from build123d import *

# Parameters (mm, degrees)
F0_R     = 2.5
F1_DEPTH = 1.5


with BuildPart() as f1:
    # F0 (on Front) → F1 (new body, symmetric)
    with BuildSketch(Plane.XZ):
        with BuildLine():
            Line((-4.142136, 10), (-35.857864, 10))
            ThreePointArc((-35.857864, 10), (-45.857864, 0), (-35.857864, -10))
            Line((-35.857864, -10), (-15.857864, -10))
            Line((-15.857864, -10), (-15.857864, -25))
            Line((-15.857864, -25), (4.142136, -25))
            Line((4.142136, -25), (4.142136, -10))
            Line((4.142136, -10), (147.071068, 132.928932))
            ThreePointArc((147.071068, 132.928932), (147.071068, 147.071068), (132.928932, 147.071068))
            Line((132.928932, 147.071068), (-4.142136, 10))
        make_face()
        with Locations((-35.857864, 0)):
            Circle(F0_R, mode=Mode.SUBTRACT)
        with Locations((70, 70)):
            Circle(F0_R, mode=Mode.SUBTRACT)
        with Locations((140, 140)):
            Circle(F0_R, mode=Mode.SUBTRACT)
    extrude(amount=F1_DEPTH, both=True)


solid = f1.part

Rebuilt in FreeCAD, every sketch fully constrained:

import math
import FreeCAD as App
import Part
import Sketcher
from FreeCAD import Vector
Q = App.Units.Quantity

doc = App.newDocument("Part")
body = doc.addObject("PartDesign::Body", "Body")

# Sketch on XZ plane
sketch1 = doc.addObject("Sketcher::SketchObject", "Sketch")
body.addObject(sketch1)
sketch1.AttachmentSupport = (doc.XZ_Plane, [""])
sketch1.MapMode = "FlatFace"
sketch1.addGeometry(Part.LineSegment(Vector(-4.1, 10, 0), Vector(-35.9, 10, 0)), False)
sketch1.addGeometry(Part.ArcOfCircle(Part.Circle(Vector(-35.9, 0, 0), Vector(0, 0, 1), 10), math.radians(90), math.radians(270)), False)
sketch1.addGeometry(Part.LineSegment(Vector(-35.9, -10, 0), Vector(-15.9, -10, 0)), False)
sketch1.addGeometry(Part.LineSegment(Vector(-15.9, -10, 0), Vector(-15.9, -25, 0)), False)
sketch1.addGeometry(Part.LineSegment(Vector(-15.9, -25, 0), Vector(4.1, -25, 0)), False)
sketch1.addGeometry(Part.LineSegment(Vector(4.1, -25, 0), Vector(4.1, -10, 0)), False)
sketch1.addGeometry(Part.LineSegment(Vector(4.1, -10, 0), Vector(147.1, 132.9, 0)), False)
sketch1.addGeometry(Part.ArcOfCircle(Part.Circle(Vector(140, 140, 0), Vector(0, 0, 1), 10), math.radians(-45), math.radians(135)), False)
sketch1.addGeometry(Part.LineSegment(Vector(132.9, 147.1, 0), Vector(-4.1, 10, 0)), False)
sketch1.addGeometry(Part.Circle(Vector(-35.9, 0, 0), Vector(0, 0, 1), 2.5), False)
sketch1.addGeometry(Part.Circle(Vector(70, 70, 0), Vector(0, 0, 1), 2.5), False)
sketch1.addGeometry(Part.Circle(Vector(140, 140, 0), Vector(0, 0, 1), 2.5), False)
sketch1.addConstraint(Sketcher.Constraint("Tangent", 0, 2, 1, 1))
sketch1.addConstraint(Sketcher.Constraint("Tangent", 1, 2, 2, 1))
sketch1.addConstraint(Sketcher.Constraint("Coincident", 2, 2, 3, 1))
sketch1.addConstraint(Sketcher.Constraint("Coincident", 3, 2, 4, 1))
sketch1.addConstraint(Sketcher.Constraint("Coincident", 4, 2, 5, 1))
sketch1.addConstraint(Sketcher.Constraint("Coincident", 5, 2, 6, 1))
sketch1.addConstraint(Sketcher.Constraint("Tangent", 6, 2, 7, 1))
sketch1.addConstraint(Sketcher.Constraint("Tangent", 7, 2, 8, 1))
sketch1.addConstraint(Sketcher.Constraint("Coincident", 8, 2, 0, 1))
sketch1.addConstraint(Sketcher.Constraint("Horizontal", 0))
sketch1.addConstraint(Sketcher.Constraint("Horizontal", 2))
sketch1.addConstraint(Sketcher.Constraint("Vertical", 3))
sketch1.addConstraint(Sketcher.Constraint("Horizontal", 4))
sketch1.addConstraint(Sketcher.Constraint("Vertical", 5))
sketch1.addConstraint(Sketcher.Constraint("Coincident", 9, 3, 1, 3))
sketch1.addConstraint(Sketcher.Constraint("Coincident", 11, 3, 7, 3))
sketch1.addConstraint(Sketcher.Constraint("Equal", 1, 7))
sketch1.addConstraint(Sketcher.Constraint("Equal", 9, 10))
sketch1.addConstraint(Sketcher.Constraint("Equal", 10, 11))
sketch1.addConstraint(Sketcher.Constraint("Symmetric", 5, 2, 8, 2, -1, 1))
sketch1.addConstraint(Sketcher.Constraint("PointOnObject", 1, 3, -1))
sketch1.addConstraint(Sketcher.Constraint("Parallel", 6, 8))
sketch1.addConstraint(Sketcher.Constraint("Equal", 2, 4))
sketch1.addConstraint(Sketcher.Constraint("Diameter", 9, Q("5 mm")))
sketch1.addConstraint(Sketcher.Constraint("Radius", 1, Q("10 mm")))
sketch1.addConstraint(Sketcher.Constraint("DistanceX", 2, 1, 2, 2, Q("20 mm")))
sketch1.addConstraint(Sketcher.Constraint("DistanceY", 3, 2, 3, 1, Q("15 mm")))
sketch1.addConstraint(Sketcher.Constraint("Angle", 6, Q("45 deg")))
sketch1.addConstraint(Sketcher.Constraint("DistanceX", -1, 1, 7, 3, Q("140 mm")))
sketch1.addConstraint(Sketcher.Constraint("DistanceX", -1, 1, 10, 3, Q("70 mm")))
sketch1.addConstraint(Sketcher.Constraint("DistanceY", -1, 1, 10, 3, Q("70 mm")))
pad1 = doc.addObject("PartDesign::Pad", "Pad")
body.addObject(pad1)
pad1.Profile = sketch1
pad1.Length = 3
pad1.Midplane = True

doc.recompute()
